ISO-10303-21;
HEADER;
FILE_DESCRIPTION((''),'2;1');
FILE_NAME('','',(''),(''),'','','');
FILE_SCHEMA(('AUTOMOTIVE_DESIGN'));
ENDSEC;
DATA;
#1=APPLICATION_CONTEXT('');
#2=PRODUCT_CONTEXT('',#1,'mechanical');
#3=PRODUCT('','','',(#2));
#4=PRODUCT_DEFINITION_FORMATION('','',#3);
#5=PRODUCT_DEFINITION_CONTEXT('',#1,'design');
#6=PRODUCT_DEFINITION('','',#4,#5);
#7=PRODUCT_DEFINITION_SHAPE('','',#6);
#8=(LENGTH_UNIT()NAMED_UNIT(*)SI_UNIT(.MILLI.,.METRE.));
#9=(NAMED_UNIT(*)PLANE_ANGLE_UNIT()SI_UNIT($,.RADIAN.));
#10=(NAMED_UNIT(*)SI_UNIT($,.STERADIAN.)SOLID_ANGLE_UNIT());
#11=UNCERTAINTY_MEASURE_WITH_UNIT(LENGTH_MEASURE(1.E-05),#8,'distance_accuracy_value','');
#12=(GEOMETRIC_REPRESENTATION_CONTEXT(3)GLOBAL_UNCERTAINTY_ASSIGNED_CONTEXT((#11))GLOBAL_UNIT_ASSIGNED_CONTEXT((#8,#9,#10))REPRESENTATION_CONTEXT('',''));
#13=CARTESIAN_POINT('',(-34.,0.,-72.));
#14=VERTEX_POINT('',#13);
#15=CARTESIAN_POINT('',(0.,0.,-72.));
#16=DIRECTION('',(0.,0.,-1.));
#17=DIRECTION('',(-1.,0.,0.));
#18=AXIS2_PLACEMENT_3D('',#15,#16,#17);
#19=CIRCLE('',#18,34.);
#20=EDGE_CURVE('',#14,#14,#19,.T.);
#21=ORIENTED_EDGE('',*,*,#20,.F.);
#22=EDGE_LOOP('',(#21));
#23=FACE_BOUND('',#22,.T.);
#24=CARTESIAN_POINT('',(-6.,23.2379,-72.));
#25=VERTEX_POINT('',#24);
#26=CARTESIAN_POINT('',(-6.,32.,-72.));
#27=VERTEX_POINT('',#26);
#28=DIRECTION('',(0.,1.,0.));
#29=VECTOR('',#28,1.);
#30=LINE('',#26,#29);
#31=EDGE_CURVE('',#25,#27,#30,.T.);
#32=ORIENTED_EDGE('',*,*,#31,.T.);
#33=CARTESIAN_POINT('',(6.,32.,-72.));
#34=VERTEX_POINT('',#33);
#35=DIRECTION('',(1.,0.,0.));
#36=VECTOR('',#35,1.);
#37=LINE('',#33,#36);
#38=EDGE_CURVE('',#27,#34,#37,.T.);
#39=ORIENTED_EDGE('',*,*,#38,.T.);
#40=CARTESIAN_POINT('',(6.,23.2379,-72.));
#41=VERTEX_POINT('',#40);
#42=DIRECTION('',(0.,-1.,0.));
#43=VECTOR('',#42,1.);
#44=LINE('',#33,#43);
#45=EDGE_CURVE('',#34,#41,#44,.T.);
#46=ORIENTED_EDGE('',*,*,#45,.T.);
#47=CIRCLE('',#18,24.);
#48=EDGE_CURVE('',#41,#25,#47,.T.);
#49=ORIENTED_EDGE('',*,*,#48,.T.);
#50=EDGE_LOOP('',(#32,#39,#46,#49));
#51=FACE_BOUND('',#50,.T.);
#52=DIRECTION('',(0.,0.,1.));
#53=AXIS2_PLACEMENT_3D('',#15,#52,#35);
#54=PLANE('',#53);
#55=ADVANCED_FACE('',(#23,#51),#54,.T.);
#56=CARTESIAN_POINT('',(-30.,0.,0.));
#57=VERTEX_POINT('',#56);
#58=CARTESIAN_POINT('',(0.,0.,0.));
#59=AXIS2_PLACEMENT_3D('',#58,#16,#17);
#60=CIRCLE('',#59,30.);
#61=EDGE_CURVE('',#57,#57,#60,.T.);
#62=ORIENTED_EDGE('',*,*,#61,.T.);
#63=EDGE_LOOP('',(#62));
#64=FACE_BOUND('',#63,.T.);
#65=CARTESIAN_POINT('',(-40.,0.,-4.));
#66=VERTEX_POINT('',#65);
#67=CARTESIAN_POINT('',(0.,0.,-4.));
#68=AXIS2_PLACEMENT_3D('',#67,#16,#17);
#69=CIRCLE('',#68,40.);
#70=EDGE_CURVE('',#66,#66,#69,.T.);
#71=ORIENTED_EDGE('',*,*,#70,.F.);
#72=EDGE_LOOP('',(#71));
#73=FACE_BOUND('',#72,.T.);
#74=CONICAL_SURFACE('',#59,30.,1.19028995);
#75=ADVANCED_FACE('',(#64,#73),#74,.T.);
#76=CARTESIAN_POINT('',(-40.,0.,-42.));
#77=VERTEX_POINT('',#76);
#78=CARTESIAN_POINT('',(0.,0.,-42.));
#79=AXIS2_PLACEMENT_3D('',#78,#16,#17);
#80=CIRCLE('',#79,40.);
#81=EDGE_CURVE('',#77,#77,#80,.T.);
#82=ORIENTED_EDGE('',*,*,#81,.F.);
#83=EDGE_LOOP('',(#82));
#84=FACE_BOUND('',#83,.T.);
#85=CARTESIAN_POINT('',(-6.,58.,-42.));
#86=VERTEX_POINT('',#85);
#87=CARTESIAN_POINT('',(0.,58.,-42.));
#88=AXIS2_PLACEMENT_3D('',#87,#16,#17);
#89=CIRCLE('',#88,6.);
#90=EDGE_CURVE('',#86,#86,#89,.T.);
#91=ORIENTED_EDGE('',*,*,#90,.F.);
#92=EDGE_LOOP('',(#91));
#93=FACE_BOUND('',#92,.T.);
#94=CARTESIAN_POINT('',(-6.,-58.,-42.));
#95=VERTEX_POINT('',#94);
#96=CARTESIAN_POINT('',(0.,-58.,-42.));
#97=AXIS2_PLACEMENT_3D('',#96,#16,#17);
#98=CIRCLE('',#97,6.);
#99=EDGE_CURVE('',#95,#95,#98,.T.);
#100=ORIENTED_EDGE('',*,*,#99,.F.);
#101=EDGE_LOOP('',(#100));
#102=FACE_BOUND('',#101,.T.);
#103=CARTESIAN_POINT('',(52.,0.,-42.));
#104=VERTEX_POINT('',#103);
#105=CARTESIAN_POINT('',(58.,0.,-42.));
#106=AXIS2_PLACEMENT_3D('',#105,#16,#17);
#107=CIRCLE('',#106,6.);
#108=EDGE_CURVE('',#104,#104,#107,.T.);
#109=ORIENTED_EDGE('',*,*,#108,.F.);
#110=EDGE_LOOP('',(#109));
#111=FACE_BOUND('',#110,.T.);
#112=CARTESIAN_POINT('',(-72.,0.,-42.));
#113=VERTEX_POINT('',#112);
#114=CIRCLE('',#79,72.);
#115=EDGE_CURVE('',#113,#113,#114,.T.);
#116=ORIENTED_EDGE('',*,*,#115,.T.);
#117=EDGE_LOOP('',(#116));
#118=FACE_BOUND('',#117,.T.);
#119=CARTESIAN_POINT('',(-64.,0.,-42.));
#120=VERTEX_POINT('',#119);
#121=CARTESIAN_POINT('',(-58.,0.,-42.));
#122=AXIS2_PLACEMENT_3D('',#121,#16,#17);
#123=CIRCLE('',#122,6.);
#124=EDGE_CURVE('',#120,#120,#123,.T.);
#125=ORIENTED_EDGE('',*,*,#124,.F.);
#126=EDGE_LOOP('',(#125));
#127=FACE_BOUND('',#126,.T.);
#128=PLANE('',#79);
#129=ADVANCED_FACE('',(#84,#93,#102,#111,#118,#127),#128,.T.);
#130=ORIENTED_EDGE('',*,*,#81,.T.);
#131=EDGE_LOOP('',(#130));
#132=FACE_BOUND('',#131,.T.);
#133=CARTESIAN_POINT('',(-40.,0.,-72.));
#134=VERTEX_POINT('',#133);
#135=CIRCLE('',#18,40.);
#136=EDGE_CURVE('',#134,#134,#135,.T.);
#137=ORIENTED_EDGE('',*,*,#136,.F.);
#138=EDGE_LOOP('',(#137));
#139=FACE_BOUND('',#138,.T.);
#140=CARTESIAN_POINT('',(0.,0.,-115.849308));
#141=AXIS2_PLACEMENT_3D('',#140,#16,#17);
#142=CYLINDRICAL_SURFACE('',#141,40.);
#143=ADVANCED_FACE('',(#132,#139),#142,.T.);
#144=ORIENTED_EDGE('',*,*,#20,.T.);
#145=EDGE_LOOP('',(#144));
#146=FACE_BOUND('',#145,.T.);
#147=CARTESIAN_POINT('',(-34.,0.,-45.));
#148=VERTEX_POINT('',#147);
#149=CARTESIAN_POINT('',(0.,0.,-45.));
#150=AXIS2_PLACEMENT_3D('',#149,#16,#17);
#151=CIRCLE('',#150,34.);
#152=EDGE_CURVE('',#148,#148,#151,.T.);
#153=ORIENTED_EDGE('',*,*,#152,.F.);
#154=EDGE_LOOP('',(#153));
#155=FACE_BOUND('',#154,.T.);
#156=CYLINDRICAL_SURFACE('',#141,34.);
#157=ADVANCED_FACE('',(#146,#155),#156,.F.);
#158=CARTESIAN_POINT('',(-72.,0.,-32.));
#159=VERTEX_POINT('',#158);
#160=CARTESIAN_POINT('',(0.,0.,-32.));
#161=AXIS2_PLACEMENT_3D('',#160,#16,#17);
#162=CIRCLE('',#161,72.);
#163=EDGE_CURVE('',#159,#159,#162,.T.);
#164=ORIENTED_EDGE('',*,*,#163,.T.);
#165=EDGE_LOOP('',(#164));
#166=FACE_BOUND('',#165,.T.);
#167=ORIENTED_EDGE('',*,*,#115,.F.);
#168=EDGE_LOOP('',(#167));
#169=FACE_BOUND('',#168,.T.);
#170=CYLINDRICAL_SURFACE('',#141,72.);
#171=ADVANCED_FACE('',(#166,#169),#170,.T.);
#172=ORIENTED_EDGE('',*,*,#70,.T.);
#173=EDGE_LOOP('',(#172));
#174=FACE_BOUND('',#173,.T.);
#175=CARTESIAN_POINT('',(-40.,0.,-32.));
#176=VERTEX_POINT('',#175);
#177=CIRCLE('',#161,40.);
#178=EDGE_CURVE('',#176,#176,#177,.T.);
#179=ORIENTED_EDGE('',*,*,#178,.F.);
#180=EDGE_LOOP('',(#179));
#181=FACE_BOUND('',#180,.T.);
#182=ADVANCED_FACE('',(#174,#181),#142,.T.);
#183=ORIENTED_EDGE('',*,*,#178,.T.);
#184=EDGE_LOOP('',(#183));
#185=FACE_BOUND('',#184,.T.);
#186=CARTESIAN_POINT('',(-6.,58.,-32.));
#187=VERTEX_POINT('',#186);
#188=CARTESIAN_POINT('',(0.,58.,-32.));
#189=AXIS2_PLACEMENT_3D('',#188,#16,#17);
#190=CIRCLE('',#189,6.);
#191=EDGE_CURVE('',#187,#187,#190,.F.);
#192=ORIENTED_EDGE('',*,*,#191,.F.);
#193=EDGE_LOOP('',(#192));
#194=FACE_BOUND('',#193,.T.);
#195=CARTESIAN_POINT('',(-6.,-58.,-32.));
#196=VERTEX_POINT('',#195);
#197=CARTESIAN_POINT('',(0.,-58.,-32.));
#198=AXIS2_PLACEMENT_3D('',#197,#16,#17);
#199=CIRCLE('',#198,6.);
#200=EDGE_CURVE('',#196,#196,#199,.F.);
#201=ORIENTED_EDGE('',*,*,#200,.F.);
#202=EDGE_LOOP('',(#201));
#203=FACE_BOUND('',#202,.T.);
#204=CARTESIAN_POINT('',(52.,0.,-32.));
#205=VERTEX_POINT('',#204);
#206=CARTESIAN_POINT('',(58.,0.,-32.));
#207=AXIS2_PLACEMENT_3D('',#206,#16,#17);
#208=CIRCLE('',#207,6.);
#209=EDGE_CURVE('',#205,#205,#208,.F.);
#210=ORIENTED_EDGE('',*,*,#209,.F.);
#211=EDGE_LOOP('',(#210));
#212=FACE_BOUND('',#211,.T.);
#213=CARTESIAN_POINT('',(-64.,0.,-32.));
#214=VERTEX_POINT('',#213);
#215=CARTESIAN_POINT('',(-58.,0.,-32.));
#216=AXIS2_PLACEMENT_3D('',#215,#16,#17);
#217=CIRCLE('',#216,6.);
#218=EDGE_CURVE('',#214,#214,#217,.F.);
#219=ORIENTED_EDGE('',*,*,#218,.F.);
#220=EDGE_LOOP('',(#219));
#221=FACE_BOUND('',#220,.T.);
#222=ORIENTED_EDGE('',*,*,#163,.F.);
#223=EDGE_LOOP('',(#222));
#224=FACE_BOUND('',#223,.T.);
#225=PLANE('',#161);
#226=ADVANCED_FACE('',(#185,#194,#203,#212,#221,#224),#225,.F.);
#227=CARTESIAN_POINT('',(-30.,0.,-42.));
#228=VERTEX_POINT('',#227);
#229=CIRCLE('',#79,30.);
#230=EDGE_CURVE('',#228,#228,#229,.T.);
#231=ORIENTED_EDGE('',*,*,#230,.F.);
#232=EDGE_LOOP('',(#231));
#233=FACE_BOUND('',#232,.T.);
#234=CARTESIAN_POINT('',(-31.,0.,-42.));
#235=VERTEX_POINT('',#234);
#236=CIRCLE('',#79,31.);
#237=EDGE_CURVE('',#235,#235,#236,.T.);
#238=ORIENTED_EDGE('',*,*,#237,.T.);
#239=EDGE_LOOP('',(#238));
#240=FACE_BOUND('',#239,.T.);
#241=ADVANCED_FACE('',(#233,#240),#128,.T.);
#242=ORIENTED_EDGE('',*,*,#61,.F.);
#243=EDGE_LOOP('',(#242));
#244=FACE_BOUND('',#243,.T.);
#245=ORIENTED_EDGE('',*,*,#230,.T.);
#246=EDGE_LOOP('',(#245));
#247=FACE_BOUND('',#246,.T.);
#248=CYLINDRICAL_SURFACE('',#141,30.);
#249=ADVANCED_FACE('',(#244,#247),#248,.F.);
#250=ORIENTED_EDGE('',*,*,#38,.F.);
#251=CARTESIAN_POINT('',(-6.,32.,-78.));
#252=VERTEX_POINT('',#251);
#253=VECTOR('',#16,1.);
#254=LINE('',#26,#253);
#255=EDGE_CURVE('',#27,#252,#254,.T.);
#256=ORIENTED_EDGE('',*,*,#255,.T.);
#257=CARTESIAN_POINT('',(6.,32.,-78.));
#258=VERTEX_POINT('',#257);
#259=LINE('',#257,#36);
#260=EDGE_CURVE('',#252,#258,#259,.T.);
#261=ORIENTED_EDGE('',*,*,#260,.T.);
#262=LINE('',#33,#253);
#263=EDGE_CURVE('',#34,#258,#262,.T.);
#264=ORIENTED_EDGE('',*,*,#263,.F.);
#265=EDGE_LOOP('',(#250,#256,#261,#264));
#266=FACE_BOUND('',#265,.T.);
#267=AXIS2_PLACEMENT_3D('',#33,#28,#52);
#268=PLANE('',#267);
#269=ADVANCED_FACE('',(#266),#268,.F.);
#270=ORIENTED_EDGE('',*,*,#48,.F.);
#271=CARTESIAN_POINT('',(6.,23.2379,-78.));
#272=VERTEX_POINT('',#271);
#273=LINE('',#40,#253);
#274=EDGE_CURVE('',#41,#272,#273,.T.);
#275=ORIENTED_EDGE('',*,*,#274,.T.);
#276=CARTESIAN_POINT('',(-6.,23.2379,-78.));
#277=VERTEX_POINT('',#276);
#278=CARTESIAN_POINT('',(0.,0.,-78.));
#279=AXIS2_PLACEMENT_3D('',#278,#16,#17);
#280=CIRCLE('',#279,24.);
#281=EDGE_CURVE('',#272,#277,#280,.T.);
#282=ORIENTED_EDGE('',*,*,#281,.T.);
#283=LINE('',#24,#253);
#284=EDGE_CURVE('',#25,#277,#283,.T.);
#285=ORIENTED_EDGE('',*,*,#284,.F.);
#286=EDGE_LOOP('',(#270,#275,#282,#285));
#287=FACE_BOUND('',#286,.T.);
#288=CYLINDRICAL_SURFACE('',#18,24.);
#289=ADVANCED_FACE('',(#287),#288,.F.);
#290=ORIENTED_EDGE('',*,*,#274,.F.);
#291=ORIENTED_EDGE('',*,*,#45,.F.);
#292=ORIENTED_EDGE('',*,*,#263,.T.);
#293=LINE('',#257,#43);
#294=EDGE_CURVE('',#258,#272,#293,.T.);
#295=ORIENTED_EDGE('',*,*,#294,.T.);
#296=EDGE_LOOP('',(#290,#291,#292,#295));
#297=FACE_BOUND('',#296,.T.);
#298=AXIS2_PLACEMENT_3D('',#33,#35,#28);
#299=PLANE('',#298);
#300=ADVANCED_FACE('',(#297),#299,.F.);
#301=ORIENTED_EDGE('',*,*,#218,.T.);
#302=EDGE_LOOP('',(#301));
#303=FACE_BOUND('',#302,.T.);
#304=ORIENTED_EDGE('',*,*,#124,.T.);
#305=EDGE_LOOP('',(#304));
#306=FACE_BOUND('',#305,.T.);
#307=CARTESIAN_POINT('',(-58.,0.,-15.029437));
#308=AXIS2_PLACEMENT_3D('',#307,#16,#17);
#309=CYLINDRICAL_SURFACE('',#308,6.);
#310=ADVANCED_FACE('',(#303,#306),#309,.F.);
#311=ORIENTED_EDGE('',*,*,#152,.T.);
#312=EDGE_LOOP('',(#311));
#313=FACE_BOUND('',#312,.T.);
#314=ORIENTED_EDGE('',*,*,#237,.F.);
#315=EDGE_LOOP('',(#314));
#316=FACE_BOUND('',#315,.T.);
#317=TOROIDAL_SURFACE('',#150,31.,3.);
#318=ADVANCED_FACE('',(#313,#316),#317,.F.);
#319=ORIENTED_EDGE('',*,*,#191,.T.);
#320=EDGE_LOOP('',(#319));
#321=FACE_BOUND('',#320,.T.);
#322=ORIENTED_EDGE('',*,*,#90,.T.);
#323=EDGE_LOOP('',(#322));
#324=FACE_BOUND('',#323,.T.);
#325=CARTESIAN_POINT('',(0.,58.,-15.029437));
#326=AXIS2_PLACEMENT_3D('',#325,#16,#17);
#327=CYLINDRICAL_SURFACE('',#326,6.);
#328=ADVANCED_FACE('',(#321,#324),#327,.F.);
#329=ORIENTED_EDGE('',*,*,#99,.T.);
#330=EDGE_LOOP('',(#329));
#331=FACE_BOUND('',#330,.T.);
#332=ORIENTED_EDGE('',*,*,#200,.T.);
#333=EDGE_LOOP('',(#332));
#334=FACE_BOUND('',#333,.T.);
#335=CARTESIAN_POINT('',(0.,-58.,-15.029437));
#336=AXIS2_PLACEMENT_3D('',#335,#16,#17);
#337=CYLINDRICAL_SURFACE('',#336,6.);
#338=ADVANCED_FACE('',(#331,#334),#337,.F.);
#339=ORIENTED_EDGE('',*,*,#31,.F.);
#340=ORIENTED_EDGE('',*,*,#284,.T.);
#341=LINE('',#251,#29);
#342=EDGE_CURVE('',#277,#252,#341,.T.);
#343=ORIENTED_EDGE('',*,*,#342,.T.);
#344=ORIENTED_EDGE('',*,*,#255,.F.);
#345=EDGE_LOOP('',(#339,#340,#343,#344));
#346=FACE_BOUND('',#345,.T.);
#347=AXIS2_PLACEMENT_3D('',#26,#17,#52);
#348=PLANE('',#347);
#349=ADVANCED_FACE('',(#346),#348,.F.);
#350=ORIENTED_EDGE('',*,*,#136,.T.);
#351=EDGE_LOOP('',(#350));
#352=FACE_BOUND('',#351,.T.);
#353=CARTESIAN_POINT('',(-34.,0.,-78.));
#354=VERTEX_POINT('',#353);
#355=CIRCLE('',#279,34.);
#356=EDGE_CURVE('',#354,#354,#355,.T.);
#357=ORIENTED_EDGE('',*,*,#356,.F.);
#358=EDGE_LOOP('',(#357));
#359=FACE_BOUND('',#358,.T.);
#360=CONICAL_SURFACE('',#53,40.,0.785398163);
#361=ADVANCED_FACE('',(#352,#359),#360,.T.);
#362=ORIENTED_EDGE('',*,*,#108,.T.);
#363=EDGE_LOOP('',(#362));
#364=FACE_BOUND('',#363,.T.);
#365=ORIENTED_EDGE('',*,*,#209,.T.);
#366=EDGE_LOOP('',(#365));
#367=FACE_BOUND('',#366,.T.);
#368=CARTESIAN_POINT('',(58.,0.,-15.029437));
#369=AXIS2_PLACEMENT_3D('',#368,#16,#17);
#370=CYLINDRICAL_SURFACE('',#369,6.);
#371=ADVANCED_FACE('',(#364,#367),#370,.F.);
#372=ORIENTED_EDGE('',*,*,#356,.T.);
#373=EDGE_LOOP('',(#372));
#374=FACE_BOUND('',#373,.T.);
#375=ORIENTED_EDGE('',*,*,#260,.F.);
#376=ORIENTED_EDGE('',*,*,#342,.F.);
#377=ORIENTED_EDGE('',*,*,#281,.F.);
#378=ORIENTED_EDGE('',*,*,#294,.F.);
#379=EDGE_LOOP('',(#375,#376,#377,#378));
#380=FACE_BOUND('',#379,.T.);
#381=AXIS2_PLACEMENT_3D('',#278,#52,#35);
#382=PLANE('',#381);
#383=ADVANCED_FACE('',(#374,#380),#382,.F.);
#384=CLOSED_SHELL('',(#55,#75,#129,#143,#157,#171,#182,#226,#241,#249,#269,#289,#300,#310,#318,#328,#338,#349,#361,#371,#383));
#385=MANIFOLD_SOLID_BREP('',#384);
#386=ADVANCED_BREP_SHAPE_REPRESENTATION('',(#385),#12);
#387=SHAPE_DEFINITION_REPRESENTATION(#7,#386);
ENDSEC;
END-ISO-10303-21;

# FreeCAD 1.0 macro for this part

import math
import FreeCAD as App
import Part
import Sketcher
from FreeCAD import Vector
Q = App.Units.Quantity

doc = App.newDocument("Part")
params = doc.addObject("Spreadsheet::Sheet", "Params")
for row, (alias, value) in enumerate([
    ("sketch1_radius", "3 mm"),
    ("sketch1_width", "1 mm"),
    ("sketch1_width2", "32 mm"),
    ("sketch1_width3", "34 mm"),
    ("sketch1_height", "42 mm"),
    ("revolution_angle", "360 deg"),
    ("sketch2_diameter", "12 mm"),
    ("pocket1_length", "10 mm"),
    ("sketch3_radius", "24 mm"),
    ("sketch3_width", "12 mm"),
    ("pocket2_length", "6 mm"),
], start=1):
    params.set(f"A{row}", alias)
    params.set(f"B{row}", "=" + value)
    params.setAlias(f"B{row}", alias)

body = doc.addObject("PartDesign::Body", "Body")

# Sketch on XZ plane
sketch1 = doc.addObject("Sketcher::SketchObject", "Sketch")
body.addObject(sketch1)
sketch1.AttachmentSupport = (doc.XZ_Plane, [""])
sketch1.MapMode = "FlatFace"
sketch1.addGeometry(Part.ArcOfCircle(Part.Circle(Vector(31, -45, 0), Vector(0, 0, 1), 3), math.radians(0), math.radians(90)), False)
sketch1.addGeometry(Part.LineSegment(Vector(31, -42, 0), Vector(30, -42, 0)), False)
sketch1.addGeometry(Part.LineSegment(Vector(30, -42, 0), Vector(30, 0, 0)), False)
sketch1.addGeometry(Part.LineSegment(Vector(30, 0, 0), Vector(40, -4, 0)), False)
sketch1.addGeometry(Part.LineSegment(Vector(40, -4, 0), Vector(40, -32, 0)), False)
sketch1.addGeometry(Part.LineSegment(Vector(40, -32, 0), Vector(72, -32, 0)), False)
sketch1.addGeometry(Part.LineSegment(Vector(72, -32, 0), Vector(72, -42, 0)), False)
sketch1.addGeometry(Part.LineSegment(Vector(72, -42, 0), Vector(40, -42, 0)), False)
sketch1.addGeometry(Part.LineSegment(Vector(40, -42, 0), Vector(40, -72, 0)), False)
sketch1.addGeometry(Part.LineSegment(Vector(40, -72, 0), Vector(34, -78, 0)), False)
sketch1.addGeometry(Part.LineSegment(Vector(34, -78, 0), Vector(0, -78, 0)), False)
sketch1.addGeometry(Part.LineSegment(Vector(0, -78, 0), Vector(0, -72, 0)), False)
sketch1.addGeometry(Part.LineSegment(Vector(0, -72, 0), Vector(34, -72, 0)), False)
sketch1.addGeometry(Part.LineSegment(Vector(34, -72, 0), Vector(34, -45, 0)), False)
sketch1.addConstraint(Sketcher.Constraint("Tangent", 0, 2, 1, 1))
sketch1.addConstraint(Sketcher.Constraint("Coincident", 1, 2, 2, 1))
sketch1.addConstraint(Sketcher.Constraint("Coincident", 2, 2, 3, 1))
sketch1.addConstraint(Sketcher.Constraint("Coincident", 3, 2, 4, 1))
sketch1.addConstraint(Sketcher.Constraint("Coincident", 4, 2, 5, 1))
sketch1.addConstraint(Sketcher.Constraint("Coincident", 5, 2, 6, 1))
sketch1.addConstraint(Sketcher.Constraint("Coincident", 6, 2, 7, 1))
sketch1.addConstraint(Sketcher.Constraint("Coincident", 7, 2, 8, 1))
sketch1.addConstraint(Sketcher.Constraint("Coincident", 8, 2, 9, 1))
sketch1.addConstraint(Sketcher.Constraint("Coincident", 9, 2, 10, 1))
sketch1.addConstraint(Sketcher.Constraint("Coincident", 10, 2, 11, 1))
sketch1.addConstraint(Sketcher.Constraint("Coincident", 11, 2, 12, 1))
sketch1.addConstraint(Sketcher.Constraint("Coincident", 12, 2, 13, 1))
sketch1.addConstraint(Sketcher.Constraint("Tangent", 13, 2, 0, 1))
sketch1.addConstraint(Sketcher.Constraint("Horizontal", 1))
sketch1.addConstraint(Sketcher.Constraint("Vertical", 2))
sketch1.addConstraint(Sketcher.Constraint("Vertical", 4))
sketch1.addConstraint(Sketcher.Constraint("Horizontal", 5))
sketch1.addConstraint(Sketcher.Constraint("Vertical", 6))
sketch1.addConstraint(Sketcher.Constraint("Horizontal", 7))
sketch1.addConstraint(Sketcher.Constraint("Vertical", 8))
sketch1.addConstraint(Sketcher.Constraint("Horizontal", 10))
sketch1.addConstraint(Sketcher.Constraint("Vertical", 11))
sketch1.addConstraint(Sketcher.Constraint("Horizontal", 12))
sketch1.addConstraint(Sketcher.Constraint("Vertical", 13))
sketch1.addConstraint(Sketcher.Constraint("PointOnObject", 2, 2, -1))
sketch1.addConstraint(Sketcher.Constraint("PointOnObject", 10, 2, -2))
sketch1.addConstraint(Sketcher.Constraint("Horizontal", 1, 2, 6, 2))
sketch1.addConstraint(Sketcher.Constraint("Horizontal", 8, 2, 11, 2))
sketch1.addConstraint(Sketcher.Constraint("Vertical", 4, 2, 7, 2))
sketch1.addConstraint(Sketcher.Constraint("Vertical", 9, 2, 12, 2))
sketch1.addConstraint(Sketcher.Constraint("Radius", 0, 3.0))
sketch1.addConstraint(Sketcher.Constraint("DistanceX", 1, 2, 1, 1, 1.0))
sketch1.addConstraint(Sketcher.Constraint("DistanceX", 5, 1, 5, 2, 32.0))
sketch1.addConstraint(Sketcher.Constraint("DistanceX", 10, 2, 10, 1, 34.0))
sketch1.addConstraint(Sketcher.Constraint("DistanceY", 2, 1, 2, 2, 42.0))
sketch1.addConstraint(Sketcher.Constraint("DistanceY", 4, 2, 4, 1, 28.0))
sketch1.addConstraint(Sketcher.Constraint("DistanceY", 6, 2, 6, 1, 10.0))
sketch1.addConstraint(Sketcher.Constraint("DistanceY", 8, 2, 8, 1, 30.0))
sketch1.addConstraint(Sketcher.Constraint("DistanceY", 11, 1, 11, 2, 6.0))
sketch1.addConstraint(Sketcher.Constraint("Angle", 9, Q("-135 deg")))
sketch1.setExpression("Constraints[31]", "Params.sketch1_radius")
sketch1.setExpression("Constraints[32]", "Params.sketch1_width")
sketch1.setExpression("Constraints[33]", "Params.sketch1_width2")
sketch1.setExpression("Constraints[34]", "Params.sketch1_width3")
sketch1.setExpression("Constraints[35]", "Params.sketch1_height")
revolution = doc.addObject("PartDesign::Revolution", "Revolution")
body.addObject(revolution)
revolution.Profile = sketch1
revolution.ReferenceAxis = (sketch1, ["V_Axis"])
revolution.setExpression("Angle", "Params.revolution_angle")

# Sketch on XY plane
sketch2 = doc.addObject("Sketcher::SketchObject", "Sketch001")
body.addObject(sketch2)
sketch2.AttachmentSupport = (doc.XY_Plane, [""])
sketch2.MapMode = "FlatFace"
sketch2.AttachmentOffset = App.Placement(Vector(0, 0, -42), App.Rotation())
sketch2.addGeometry(Part.Circle(Vector(-58, 0, 0), Vector(0, 0, 1), 6), False)
sketch2.addGeometry(Part.Circle(Vector(0, -58, 0), Vector(0, 0, 1), 6), False)
sketch2.addGeometry(Part.Circle(Vector(58, 0, 0), Vector(0, 0, 1), 6), False)
sketch2.addGeometry(Part.Circle(Vector(0, 58, 0), Vector(0, 0, 1), 6), False)
sketch2.addConstraint(Sketcher.Constraint("Equal", 0, 1))
sketch2.addConstraint(Sketcher.Constraint("Equal", 1, 2))
sketch2.addConstraint(Sketcher.Constraint("Equal", 2, 3))
sketch2.addConstraint(Sketcher.Constraint("Symmetric", 0, 3, 2, 3, -1, 1))
sketch2.addConstraint(Sketcher.Constraint("Symmetric", 1, 3, 3, 3, -1, 1))
sketch2.addConstraint(Sketcher.Constraint("PointOnObject", 0, 3, -1))
sketch2.addConstraint(Sketcher.Constraint("PointOnObject", 1, 3, -2))
sketch2.addConstraint(Sketcher.Constraint("Diameter", 0, 12.0))
sketch2.addConstraint(Sketcher.Constraint("DistanceX", 0, 3, -1, 1, 58.0))
sketch2.addConstraint(Sketcher.Constraint("DistanceY", 1, 3, -1, 1, 58.0))
sketch2.setExpression("Constraints[7]", "Params.sketch2_diameter")
pocket1 = doc.addObject("PartDesign::Pocket", "Pocket")
body.addObject(pocket1)
pocket1.Profile = sketch2
pocket1.setExpression("Length", "Params.pocket1_length")
pocket1.Reversed = True

# Sketch on XY plane
sketch3 = doc.addObject("Sketcher::SketchObject", "Sketch002")
body.addObject(sketch3)
sketch3.AttachmentSupport = (doc.XY_Plane, [""])
sketch3.MapMode = "FlatFace"
sketch3.AttachmentOffset = App.Placement(Vector(0, 0, -78), App.Rotation())
sketch3.addGeometry(Part.LineSegment(Vector(-6, 32, 0), Vector(6, 32, 0)), False)
sketch3.addGeometry(Part.LineSegment(Vector(6, 32, 0), Vector(6, 23, 0)), False)
sketch3.addGeometry(Part.ArcOfCircle(Part.Circle(Vector(0, 0, 0), Vector(0, 0, 1), 24), math.radians(104), math.radians(436)), False)
sketch3.addGeometry(Part.LineSegment(Vector(-6, 23, 0), Vector(-6, 32, 0)), False)
sketch3.addConstraint(Sketcher.Constraint("Coincident", 0, 2, 1, 1))
sketch3.addConstraint(Sketcher.Constraint("Coincident", 1, 2, 2, 2))
sketch3.addConstraint(Sketcher.Constraint("Coincident", 2, 1, 3, 1))
sketch3.addConstraint(Sketcher.Constraint("Coincident", 3, 2, 0, 1))
sketch3.addConstraint(Sketcher.Constraint("Horizontal", 0))
sketch3.addConstraint(Sketcher.Constraint("Vertical", 1))
sketch3.addConstraint(Sketcher.Constraint("Vertical", 3))
sketch3.addConstraint(Sketcher.Constraint("Coincident", 2, 3, -1, 1))
sketch3.addConstraint(Sketcher.Constraint("Horizontal", 1, 2, 2, 1))
sketch3.addConstraint(Sketcher.Constraint("Radius", 2, 24.0))
sketch3.addConstraint(Sketcher.Constraint("DistanceX", 0, 1, 0, 2, 12.0))
sketch3.addConstraint(Sketcher.Constraint("DistanceY", -1, 1, 0, 2, 32.0))
sketch3.setExpression("Constraints[9]", "Params.sketch3_radius")
sketch3.setExpression("Constraints[10]", "Params.sketch3_width")
pocket2 = doc.addObject("PartDesign::Pocket", "Pocket001")
body.addObject(pocket2)
pocket2.Profile = sketch3
pocket2.setExpression("Length", "Params.pocket2_length")
pocket2.Reversed = True

doc.recompute()
